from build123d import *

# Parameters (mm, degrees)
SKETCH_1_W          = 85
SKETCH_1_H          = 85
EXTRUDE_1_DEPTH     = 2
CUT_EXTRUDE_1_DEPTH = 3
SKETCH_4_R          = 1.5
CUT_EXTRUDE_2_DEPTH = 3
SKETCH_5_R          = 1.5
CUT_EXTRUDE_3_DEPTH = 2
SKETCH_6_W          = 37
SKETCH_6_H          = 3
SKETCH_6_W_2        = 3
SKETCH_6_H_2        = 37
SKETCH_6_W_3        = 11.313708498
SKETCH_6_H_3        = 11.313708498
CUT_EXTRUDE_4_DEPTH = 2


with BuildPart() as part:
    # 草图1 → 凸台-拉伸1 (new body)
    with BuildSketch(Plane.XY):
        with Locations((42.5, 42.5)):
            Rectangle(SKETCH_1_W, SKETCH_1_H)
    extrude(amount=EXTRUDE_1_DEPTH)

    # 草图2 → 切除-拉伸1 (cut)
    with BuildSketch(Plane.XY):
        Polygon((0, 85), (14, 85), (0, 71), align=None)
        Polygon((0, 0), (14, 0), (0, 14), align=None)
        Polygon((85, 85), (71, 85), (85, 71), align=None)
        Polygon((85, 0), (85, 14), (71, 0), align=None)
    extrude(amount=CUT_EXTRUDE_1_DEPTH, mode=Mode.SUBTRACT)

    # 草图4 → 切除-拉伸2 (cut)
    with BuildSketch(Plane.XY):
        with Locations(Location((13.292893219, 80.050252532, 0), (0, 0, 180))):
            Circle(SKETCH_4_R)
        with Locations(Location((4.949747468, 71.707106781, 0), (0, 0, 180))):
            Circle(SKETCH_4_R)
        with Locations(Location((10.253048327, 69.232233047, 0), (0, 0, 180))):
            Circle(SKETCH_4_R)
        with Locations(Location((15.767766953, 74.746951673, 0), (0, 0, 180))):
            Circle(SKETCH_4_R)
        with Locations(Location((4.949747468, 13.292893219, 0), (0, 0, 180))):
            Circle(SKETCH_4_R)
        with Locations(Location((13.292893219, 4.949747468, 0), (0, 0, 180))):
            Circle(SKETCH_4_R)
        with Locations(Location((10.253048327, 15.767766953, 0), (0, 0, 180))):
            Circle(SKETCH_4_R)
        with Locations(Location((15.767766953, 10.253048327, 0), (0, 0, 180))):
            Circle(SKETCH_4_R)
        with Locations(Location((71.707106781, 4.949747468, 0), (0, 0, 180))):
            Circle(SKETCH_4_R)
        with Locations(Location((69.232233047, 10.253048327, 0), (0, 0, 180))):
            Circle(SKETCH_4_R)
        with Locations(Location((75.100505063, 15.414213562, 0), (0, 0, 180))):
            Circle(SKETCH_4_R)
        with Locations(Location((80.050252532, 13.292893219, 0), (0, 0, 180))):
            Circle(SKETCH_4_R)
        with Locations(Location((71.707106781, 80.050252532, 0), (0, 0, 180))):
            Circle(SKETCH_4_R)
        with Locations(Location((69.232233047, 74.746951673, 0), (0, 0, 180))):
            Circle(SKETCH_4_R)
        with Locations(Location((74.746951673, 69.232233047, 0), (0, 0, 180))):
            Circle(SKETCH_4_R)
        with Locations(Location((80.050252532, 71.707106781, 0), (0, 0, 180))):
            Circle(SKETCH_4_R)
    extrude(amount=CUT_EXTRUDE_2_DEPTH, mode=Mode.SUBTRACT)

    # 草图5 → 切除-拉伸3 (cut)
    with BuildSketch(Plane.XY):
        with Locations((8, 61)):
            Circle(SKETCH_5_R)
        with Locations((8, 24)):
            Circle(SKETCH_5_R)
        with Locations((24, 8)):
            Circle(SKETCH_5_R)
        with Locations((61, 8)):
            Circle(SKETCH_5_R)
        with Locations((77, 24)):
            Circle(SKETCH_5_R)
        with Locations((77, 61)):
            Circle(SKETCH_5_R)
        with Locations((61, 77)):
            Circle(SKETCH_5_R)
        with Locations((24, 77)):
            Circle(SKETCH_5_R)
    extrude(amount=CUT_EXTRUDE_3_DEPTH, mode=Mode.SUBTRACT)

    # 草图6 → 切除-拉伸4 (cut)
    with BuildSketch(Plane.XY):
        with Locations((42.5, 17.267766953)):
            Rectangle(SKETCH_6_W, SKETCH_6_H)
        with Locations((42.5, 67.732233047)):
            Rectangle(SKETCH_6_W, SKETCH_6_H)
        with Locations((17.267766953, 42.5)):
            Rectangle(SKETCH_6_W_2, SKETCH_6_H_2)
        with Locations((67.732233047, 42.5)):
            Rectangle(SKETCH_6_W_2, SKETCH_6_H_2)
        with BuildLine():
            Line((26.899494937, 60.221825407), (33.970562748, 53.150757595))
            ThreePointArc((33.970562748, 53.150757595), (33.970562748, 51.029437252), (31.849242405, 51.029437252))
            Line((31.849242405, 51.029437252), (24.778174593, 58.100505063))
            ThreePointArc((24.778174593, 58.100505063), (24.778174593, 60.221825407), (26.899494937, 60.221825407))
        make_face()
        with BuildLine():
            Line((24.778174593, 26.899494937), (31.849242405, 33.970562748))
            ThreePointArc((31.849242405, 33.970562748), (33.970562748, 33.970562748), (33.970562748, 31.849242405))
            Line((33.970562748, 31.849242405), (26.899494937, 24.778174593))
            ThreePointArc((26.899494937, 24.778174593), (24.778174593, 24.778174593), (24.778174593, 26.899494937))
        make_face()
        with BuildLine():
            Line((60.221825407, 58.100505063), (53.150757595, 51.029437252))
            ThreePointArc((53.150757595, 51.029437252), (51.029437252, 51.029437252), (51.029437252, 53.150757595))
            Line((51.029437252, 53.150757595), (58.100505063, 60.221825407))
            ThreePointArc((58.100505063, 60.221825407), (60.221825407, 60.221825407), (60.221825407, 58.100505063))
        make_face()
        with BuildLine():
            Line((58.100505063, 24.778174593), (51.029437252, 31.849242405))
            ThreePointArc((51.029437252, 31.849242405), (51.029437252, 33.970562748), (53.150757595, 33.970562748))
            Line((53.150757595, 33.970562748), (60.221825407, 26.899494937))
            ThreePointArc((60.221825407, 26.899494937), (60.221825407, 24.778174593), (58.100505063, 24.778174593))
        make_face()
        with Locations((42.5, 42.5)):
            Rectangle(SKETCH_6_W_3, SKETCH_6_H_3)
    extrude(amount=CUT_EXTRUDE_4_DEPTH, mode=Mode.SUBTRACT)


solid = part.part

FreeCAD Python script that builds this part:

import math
import FreeCAD as App
import Part
import Sketcher


def add_polygon(sketch, points):
    """Adds a closed chain of lines whose ends are joined by coincident constraints."""
    first, n = sketch.GeometryCount, len(points)
    for a, b in zip(points, points[1:] + points[:1]):
        sketch.addGeometry(Part.LineSegment(App.Vector(*a, 0), App.Vector(*b, 0)), False)
    for i in range(n):
        sketch.addConstraint(Sketcher.Constraint("Coincident", first + i, 2, first + (i + 1) % n, 1))

doc = App.newDocument("Part")
body = doc.addObject("PartDesign::Body", "Body")

sketch1 = doc.addObject("Sketcher::SketchObject", "Sketch")
body.addObject(sketch1)
sketch1.AttachmentSupport = (doc.XY_Plane, [""])
sketch1.MapMode = "FlatFace"
add_polygon(sketch1, [(0, 85), (0, 0), (85, 0), (85, 85)])
sketch1.addConstraint([
    Sketcher.Constraint("Vertical", 0),
    Sketcher.Constraint("Horizontal", 1),
    Sketcher.Constraint("Vertical", 2),
    Sketcher.Constraint("Horizontal", 3),
    Sketcher.Constraint("Coincident", 0, 2, -1, 1),
    Sketcher.Constraint("Equal", 3, 0),
    Sketcher.Constraint("DistanceX", 1, 1, 1, 2, 85.0),
])
pad1 = doc.addObject("PartDesign::Pad", "Pad")
body.addObject(pad1)
pad1.Profile = sketch1
pad1.Length = 2

sketch2 = doc.addObject("Sketcher::SketchObject", "Sketch001")
body.addObject(sketch2)
sketch2.AttachmentSupport = (doc.XY_Plane, [""])
sketch2.MapMode = "FlatFace"
add_polygon(sketch2, [(14, 85), (0, 85), (0, 71)])
add_polygon(sketch2, [(0, 0), (14, 0), (0, 14)])
add_polygon(sketch2, [(85, 85), (71, 85), (85, 71)])
add_polygon(sketch2, [(85, 0), (85, 14), (71, 0)])
sketch2.addConstraint([
    Sketcher.Constraint("Horizontal", 0),
    Sketcher.Constraint("Vertical", 1),
    Sketcher.Constraint("Horizontal", 3),
    Sketcher.Constraint("Vertical", 5),
    Sketcher.Constraint("Horizontal", 6),
    Sketcher.Constraint("Vertical", 8),
    Sketcher.Constraint("Vertical", 9),
    Sketcher.Constraint("Horizontal", 11),
    Sketcher.Constraint("Coincident", 5, 2, -1, 1),
    Sketcher.Constraint("PointOnObject", 0, 2, -2),
    Sketcher.Constraint("PointOnObject", 10, 2, -1),
    Sketcher.Constraint("Perpendicular", 2, 4),
    Sketcher.Constraint("Parallel", 4, 7),
    Sketcher.Constraint("Perpendicular", 7, 10),
    Sketcher.Constraint("Horizontal", 2, 2, 6, 2),
    Sketcher.Constraint("Horizontal", 1, 2, 7, 2),
    Sketcher.Constraint("Horizontal", 4, 2, 9, 2),
    Sketcher.Constraint("Vertical", 2, 2, 3, 2),
    Sketcher.Constraint("Vertical", 8, 2, 9, 2),
    Sketcher.Constraint("Vertical", 6, 2, 10, 2),
    Sketcher.Constraint("DistanceX", 0, 2, 0, 1, 14.0),
    Sketcher.Constraint("DistanceY", -1, 1, 0, 2, 85.0),
    Sketcher.Constraint("DistanceX", -1, 1, 6, 2, 71.0),
])
pocket1 = doc.addObject("PartDesign::Pocket", "Pocket")
body.addObject(pocket1)
pocket1.Profile = sketch2
pocket1.Length = 3
pocket1.Reversed = True

sketch3 = doc.addObject("Sketcher::SketchObject", "Sketch002")
body.addObject(sketch3)
sketch3.AttachmentSupport = (doc.XY_Plane, [""])
sketch3.MapMode = "FlatFace"
sketch3.addGeometry([
    Part.Circle(App.Vector(13.292893, 80.050253, 0), App.Vector(0, 0, 1), 1.5),
    Part.Circle(App.Vector(4.949747, 71.707107, 0), App.Vector(0, 0, 1), 1.5),
    Part.Circle(App.Vector(10.253048, 69.232233, 0), App.Vector(0, 0, 1), 1.5),
    Part.Circle(App.Vector(15.767767, 74.746952, 0), App.Vector(0, 0, 1), 1.5),
    Part.Circle(App.Vector(4.949747, 13.292893, 0), App.Vector(0, 0, 1), 1.5),
    Part.Circle(App.Vector(13.292893, 4.949747, 0), App.Vector(0, 0, 1), 1.5),
    Part.Circle(App.Vector(10.253048, 15.767767, 0), App.Vector(0, 0, 1), 1.5),
    Part.Circle(App.Vector(15.767767, 10.253048, 0), App.Vector(0, 0, 1), 1.5),
    Part.Circle(App.Vector(71.707107, 4.949747, 0), App.Vector(0, 0, 1), 1.5),
    Part.Circle(App.Vector(69.232233, 10.253048, 0), App.Vector(0, 0, 1), 1.5),
    Part.Circle(App.Vector(75.100505, 15.414214, 0), App.Vector(0, 0, 1), 1.5),
    Part.Circle(App.Vector(80.050253, 13.292893, 0), App.Vector(0, 0, 1), 1.5),
    Part.Circle(App.Vector(71.707107, 80.050253, 0), App.Vector(0, 0, 1), 1.5),
    Part.Circle(App.Vector(69.232233, 74.746952, 0), App.Vector(0, 0, 1), 1.5),
    Part.Circle(App.Vector(74.746952, 69.232233, 0), App.Vector(0, 0, 1), 1.5),
    Part.Circle(App.Vector(80.050253, 71.707107, 0), App.Vector(0, 0, 1), 1.5),
], False)
sketch3.addConstraint([
    Sketcher.Constraint("Equal", 0, 1),
    Sketcher.Constraint("Equal", 1, 2),
    Sketcher.Constraint("Equal", 2, 3),
    Sketcher.Constraint("Equal", 3, 4),
    Sketcher.Constraint("Equal", 4, 5),
    Sketcher.Constraint("Equal", 5, 6),
    Sketcher.Constraint("Equal", 6, 7),
    Sketcher.Constraint("Equal", 7, 8),
    Sketcher.Constraint("Equal", 8, 9),
    Sketcher.Constraint("Equal", 9, 10),
    Sketcher.Constraint("Equal", 10, 11),
    Sketcher.Constraint("Equal", 11, 12),
    Sketcher.Constraint("Equal", 12, 13),
    Sketcher.Constraint("Equal", 13, 14),
    Sketcher.Constraint("Equal", 14, 15),
    Sketcher.Constraint("Horizontal", 5, 3, 8, 3),
    Sketcher.Constraint("Horizontal", 7, 3, 9, 3),
    Sketcher.Constraint("Horizontal", 4, 3, 11, 3),
    Sketcher.Constraint("Horizontal", 0, 3, 12, 3),
    Sketcher.Constraint("Horizontal", 3, 3, 13, 3),
    Sketcher.Constraint("Horizontal", 2, 3, 14, 3),
    Sketcher.Constraint("Horizontal", 1, 3, 15, 3),
    Sketcher.Constraint("Vertical", 1, 3, 4, 3),
    Sketcher.Constraint("Vertical", 0, 3, 5, 3),
    Sketcher.Constraint("Vertical", 2, 3, 6, 3),
    Sketcher.Constraint("Vertical", 3, 3, 7, 3),
    Sketcher.Constraint("Vertical", 8, 3, 12, 3),
    Sketcher.Constraint("Vertical", 9, 3, 13, 3),
    Sketcher.Constraint("Vertical", 11, 3, 15, 3),
    Sketcher.Constraint("Diameter", 0, 3.0),
    Sketcher.Constraint("DistanceX", 1, 3, 2, 3, 5.303301),
    Sketcher.Constraint("DistanceY", 3, 3, 0, 3, 5.303301),
    Sketcher.Constraint("DistanceY", 5, 3, 7, 3, 5.303301),
    Sketcher.Constraint("DistanceX", 8, 3, 10, 3, 3.393398),
    Sketcher.Constraint("DistanceX", 14, 3, 11, 3, 5.303301),
    Sketcher.Constraint("DistanceX", -1, 1, 2, 3, 10.253048),
    Sketcher.Constraint("DistanceY", -1, 1, 3, 3, 74.746952),
    Sketcher.Constraint("DistanceY", -1, 1, 7, 3, 10.253048),
    Sketcher.Constraint("DistanceX", -1, 1, 14, 3, 74.746952),
    Sketcher.Constraint("DistanceY", 2, 3, 0, 3, 10.818019),
    Sketcher.Constraint("DistanceX", 2, 3, 3, 3, 5.514719),
    Sketcher.Constraint("DistanceY", 4, 3, 2, 3, 55.93934),
    Sketcher.Constraint("DistanceY", 5, 3, 1, 3, 66.757359),
    Sketcher.Constraint("DistanceY", 5, 3, 6, 3, 10.818019),
    Sketcher.Constraint("DistanceX", 7, 3, 8, 3, 55.93934),
    Sketcher.Constraint("DistanceX", 5, 3, 9, 3, 55.93934),
    Sketcher.Constraint("DistanceX", 5, 3, 10, 3, 61.807612),
    Sketcher.Constraint("DistanceY", 11, 3, 10, 3, 2.12132),
])
pocket2 = doc.addObject("PartDesign::Pocket", "Pocket001")
body.addObject(pocket2)
pocket2.Profile = sketch3
pocket2.Length = 3
pocket2.Reversed = True

sketch4 = doc.addObject("Sketcher::SketchObject", "Sketch003")
body.addObject(sketch4)
sketch4.AttachmentSupport = (doc.XY_Plane, [""])
sketch4.MapMode = "FlatFace"
sketch4.addGeometry([
    Part.Circle(App.Vector(8, 61, 0), App.Vector(0, 0, 1), 1.5),
    Part.Circle(App.Vector(8, 24, 0), App.Vector(0, 0, 1), 1.5),
    Part.Circle(App.Vector(24, 8, 0), App.Vector(0, 0, 1), 1.5),
    Part.Circle(App.Vector(61, 8, 0), App.Vector(0, 0, 1), 1.5),
    Part.Circle(App.Vector(77, 24, 0), App.Vector(0, 0, 1), 1.5),
    Part.Circle(App.Vector(77, 61, 0), App.Vector(0, 0, 1), 1.5),
    Part.Circle(App.Vector(61, 77, 0), App.Vector(0, 0, 1), 1.5),
    Part.Circle(App.Vector(24, 77, 0), App.Vector(0, 0, 1), 1.5),
], False)
sketch4.addConstraint([
    Sketcher.Constraint("Equal", 0, 1),
    Sketcher.Constraint("Equal", 1, 2),
    Sketcher.Constraint("Equal", 2, 3),
    Sketcher.Constraint("Equal", 3, 4),
    Sketcher.Constraint("Equal", 4, 5),
    Sketcher.Constraint("Equal", 5, 6),
    Sketcher.Constraint("Equal", 6, 7),
    Sketcher.Constraint("Horizontal", 2, 3, 3, 3),
    Sketcher.Constraint("Horizontal", 1, 3, 4, 3),
    Sketcher.Constraint("Horizontal", 0, 3, 5, 3),
    Sketcher.Constraint("Horizontal", 6, 3, 7, 3),
    Sketcher.Constraint("Vertical", 0, 3, 1, 3),
    Sketcher.Constraint("Vertical", 4, 3, 5, 3),
    Sketcher.Constraint("Vertical", 3, 3, 6, 3),
    Sketcher.Constraint("Vertical", 2, 3, 7, 3),
    Sketcher.Constraint("Diameter", 0, 3.0),
    Sketcher.Constraint("DistanceX", -1, 1, 0, 3, 8.0),
    Sketcher.Constraint("DistanceY", -1, 1, 0, 3, 61.0),
    Sketcher.Constraint("DistanceY", -1, 1, 1, 3, 24.0),
    Sketcher.Constraint("DistanceX", -1, 1, 2, 3, 24.0),
    Sketcher.Constraint("DistanceY", -1, 1, 2, 3, 8.0),
    Sketcher.Constraint("DistanceX", -1, 1, 3, 3, 61.0),
    Sketcher.Constraint("DistanceX", -1, 1, 4, 3, 77.0),
    Sketcher.Constraint("DistanceY", -1, 1, 6, 3, 77.0),
])
pocket3 = doc.addObject("PartDesign::Pocket", "Pocket002")
body.addObject(pocket3)
pocket3.Profile = sketch4
pocket3.Length = 2
pocket3.Reversed = True

sketch5 = doc.addObject("Sketcher::SketchObject", "Sketch004")
body.addObject(sketch5)
sketch5.AttachmentSupport = (doc.XY_Plane, [""])
sketch5.MapMode = "FlatFace"
add_polygon(sketch5, [(24, 18.767767), (24, 15.767767), (61, 15.767767), (61, 18.767767)])
add_polygon(sketch5, [(24, 69.232233), (24, 66.232233), (61, 66.232233), (61, 69.232233)])
add_polygon(sketch5, [(15.767767, 61), (15.767767, 24), (18.767767, 24), (18.767767, 61)])
add_polygon(sketch5, [(66.232233, 61), (66.232233, 24), (69.232233, 24), (69.232233, 61)])
sketch5.addGeometry(Part.LineSegment(App.Vector(33.970563, 53.150758, 0), App.Vector(26.899495, 60.221825, 0)), False)
sketch5.addGeometry(Part.ArcOfCircle(Part.Circle(App.Vector(25.838835, 59.161165, 0), App.Vector(0, 0, 1), 1.5), math.radians(45), math.radians(225)), False)
sketch5.addGeometry(Part.LineSegment(App.Vector(24.778175, 58.100505, 0), App.Vector(31.849242, 51.029437, 0)), False)
sketch5.addGeometry(Part.ArcOfCircle(Part.Circle(App.Vector(32.909903, 52.090097, 0), App.Vector(0, 0, 1), 1.5), math.radians(-135), math.radians(45)), False)
sketch5.addGeometry(Part.LineSegment(App.Vector(31.849242, 33.970563, 0), App.Vector(24.778175, 26.899495, 0)), False)
sketch5.addGeometry(Part.ArcOfCircle(Part.Circle(App.Vector(25.838835, 25.838835, 0), App.Vector(0, 0, 1), 1.5), math.radians(135), math.radians(315)), False)
sketch5.addGeometry(Part.LineSegment(App.Vector(26.899495, 24.778175, 0), App.Vector(33.970563, 31.849242, 0)), False)
sketch5.addGeometry(Part.ArcOfCircle(Part.Circle(App.Vector(32.909903, 32.909903, 0), App.Vector(0, 0, 1), 1.5), math.radians(-45), math.radians(135)), False)
sketch5.addGeometry(Part.LineSegment(App.Vector(53.150758, 51.029437, 0), App.Vector(60.221825, 58.100505, 0)), False)
sketch5.addGeometry(Part.ArcOfCircle(Part.Circle(App.Vector(59.161165, 59.161165, 0), App.Vector(0, 0, 1), 1.5), math.radians(-45), math.radians(135)), False)
sketch5.addGeometry(Part.LineSegment(App.Vector(58.100505, 60.221825, 0), App.Vector(51.029437, 53.150758, 0)), False)
sketch5.addGeometry(Part.ArcOfCircle(Part.Circle(App.Vector(52.090097, 52.090097, 0), App.Vector(0, 0, 1), 1.5), math.radians(135), math.radians(315)), False)
sketch5.addGeometry(Part.LineSegment(App.Vector(51.029437, 31.849242, 0), App.Vector(58.100505, 24.778175, 0)), False)
sketch5.addGeometry(Part.ArcOfCircle(Part.Circle(App.Vector(59.161165, 25.838835, 0), App.Vector(0, 0, 1), 1.5), math.radians(-135), math.radians(45)), False)
sketch5.addGeometry(Part.LineSegment(App.Vector(60.221825, 26.899495, 0), App.Vector(53.150758, 33.970563, 0)), False)
sketch5.addGeometry(Part.ArcOfCircle(Part.Circle(App.Vector(52.090097, 32.909903, 0), App.Vector(0, 0, 1), 1.5), math.radians(45), math.radians(225)), False)
add_polygon(sketch5, [(36.843146, 48.156854), (36.843146, 36.843146), (48.156854, 36.843146), (48.156854, 48.156854)])
sketch5.addConstraint([
    Sketcher.Constraint("Tangent", 16, 2, 17, 1),
    Sketcher.Constraint("Tangent", 17, 2, 18, 1),
    Sketcher.Constraint("Tangent", 18, 2, 19, 1),
    Sketcher.Constraint("Tangent", 19, 2, 16, 1),
    Sketcher.Constraint("Tangent", 20, 2, 21, 1),
    Sketcher.Constraint("Tangent", 21, 2, 22, 1),
    Sketcher.Constraint("Tangent", 22, 2, 23, 1),
    Sketcher.Constraint("Tangent", 23, 2, 20, 1),
    Sketcher.Constraint("Tangent", 24, 2, 25, 1),
    Sketcher.Constraint("Tangent", 25, 2, 26, 1),
    Sketcher.Constraint("Tangent", 26, 2, 27, 1),
    Sketcher.Constraint("Tangent", 27, 2, 24, 1),
    Sketcher.Constraint("Tangent", 28, 2, 29, 1),
    Sketcher.Constraint("Tangent", 29, 2, 30, 1),
    Sketcher.Constraint("Tangent", 30, 2, 31, 1),
    Sketcher.Constraint("Tangent", 31, 2, 28, 1),
    Sketcher.Constraint("Vertical", 0),
    Sketcher.Constraint("Horizontal", 1),
    Sketcher.Constraint("Vertical", 2),
    Sketcher.Constraint("Horizontal", 3),
    Sketcher.Constraint("Vertical", 4),
    Sketcher.Constraint("Horizontal", 5),
    Sketcher.Constraint("Vertical", 6),
    Sketcher.Constraint("Horizontal", 7),
    Sketcher.Constraint("Vertical", 8),
    Sketcher.Constraint("Horizontal", 9),
    Sketcher.Constraint("Vertical", 10),
    Sketcher.Constraint("Horizontal", 11),
    Sketcher.Constraint("Vertical", 12),
    Sketcher.Constraint("Horizontal", 13),
    Sketcher.Constraint("Vertical", 14),
    Sketcher.Constraint("Horizontal", 15),
    Sketcher.Constraint("Vertical", 32),
    Sketcher.Constraint("Horizontal", 33),
    Sketcher.Constraint("Vertical", 34),
    Sketcher.Constraint("Horizontal", 35),
    Sketcher.Constraint("Equal", 17, 19),
    Sketcher.Constraint("Equal", 19, 21),
    Sketcher.Constraint("Equal", 21, 23),
    Sketcher.Constraint("Equal", 23, 25),
    Sketcher.Constraint("Equal", 25, 27),
    Sketcher.Constraint("Equal", 27, 29),
    Sketcher.Constraint("Equal", 29, 31),
    Sketcher.Constraint("Perpendicular", 18, 20),
    Sketcher.Constraint("Parallel", 22, 24),
    Sketcher.Constraint("Perpendicular", 26, 28),
    Sketcher.Constraint("Horizontal", 17, 3, 25, 3),
    Sketcher.Constraint("Horizontal", 19, 3, 27, 3),
    Sketcher.Constraint("Horizontal", 21, 3, 29, 3),
    Sketcher.Constraint("Horizontal", 23, 3, 31, 3),
    Sketcher.Constraint("Horizontal", 9, 2, 12, 2),
    Sketcher.Constraint("Horizontal", 11, 2, 14, 2),
    Sketcher.Constraint("Horizontal", 17, 2, 24, 2),
    Sketcher.Constraint("Vertical", 17, 3, 21, 3),
    Sketcher.Constraint("Vertical", 19, 3, 23, 3),
    Sketcher.Constraint("Vertical", 25, 3, 29, 3),
    Sketcher.Constraint("Vertical", 3, 2, 4, 2),
    Sketcher.Constraint("Vertical", 2, 2, 5, 2),
    Sketcher.Constraint("Equal", 11, 13),
    Sketcher.Constraint("Equal", 15, 0),
    Sketcher.Constraint("Equal", 2, 4),
    Sketcher.Constraint("Equal", 7, 8),
    Sketcher.Constraint("Equal", 35, 32),
    Sketcher.Constraint("Radius", 17, 1.5),
    Sketcher.Constraint("DistanceX", 1, 1, 1, 2, 37.0),
    Sketcher.Constraint("DistanceX", 9, 1, 9, 2, 3.0),
    Sketcher.Constraint("Distance", 16, 10.0),
    Sketcher.Constraint("DistanceX", -1, 1, 0, 2, 24.0),
    Sketcher.Constraint("DistanceY", -1, 1, 8, 2, 24.0),
    Sketcher.Constraint("DistanceX", 33, 1, 33, 2, 11.313708),
    Sketcher.Constraint("DistanceY", 21, 3, 17, 3, 33.32233),
    Sketcher.Constraint("DistanceX", 17, 3, 25, 3, 33.32233),
    Sketcher.Constraint("DistanceY", 0, 2, 19, 3, 36.32233),
    Sketcher.Constraint("DistanceY", 23, 3, 4, 2, 33.32233),
    Sketcher.Constraint("DistanceX", 32, 2, 31, 2, 14.186292),
    Sketcher.Constraint("DistanceY", 32, 2, 18, 2, 14.186292),
    Sketcher.Constraint("DistanceX", -1, 1, 17, 3, 25.838835),
    Sketcher.Constraint("DistanceY", -1, 1, 17, 3, 59.161165),
    Sketcher.Constraint("DistanceX", -1, 1, 8, 2, 15.767767),
    Sketcher.Constraint("DistanceX", -1, 1, 12, 2, 66.232233),
])
pocket4 = doc.addObject("PartDesign::Pocket", "Pocket003")
body.addObject(pocket4)
pocket4.Profile = sketch5
pocket4.Length = 2
pocket4.Reversed = True

doc.recompute()
